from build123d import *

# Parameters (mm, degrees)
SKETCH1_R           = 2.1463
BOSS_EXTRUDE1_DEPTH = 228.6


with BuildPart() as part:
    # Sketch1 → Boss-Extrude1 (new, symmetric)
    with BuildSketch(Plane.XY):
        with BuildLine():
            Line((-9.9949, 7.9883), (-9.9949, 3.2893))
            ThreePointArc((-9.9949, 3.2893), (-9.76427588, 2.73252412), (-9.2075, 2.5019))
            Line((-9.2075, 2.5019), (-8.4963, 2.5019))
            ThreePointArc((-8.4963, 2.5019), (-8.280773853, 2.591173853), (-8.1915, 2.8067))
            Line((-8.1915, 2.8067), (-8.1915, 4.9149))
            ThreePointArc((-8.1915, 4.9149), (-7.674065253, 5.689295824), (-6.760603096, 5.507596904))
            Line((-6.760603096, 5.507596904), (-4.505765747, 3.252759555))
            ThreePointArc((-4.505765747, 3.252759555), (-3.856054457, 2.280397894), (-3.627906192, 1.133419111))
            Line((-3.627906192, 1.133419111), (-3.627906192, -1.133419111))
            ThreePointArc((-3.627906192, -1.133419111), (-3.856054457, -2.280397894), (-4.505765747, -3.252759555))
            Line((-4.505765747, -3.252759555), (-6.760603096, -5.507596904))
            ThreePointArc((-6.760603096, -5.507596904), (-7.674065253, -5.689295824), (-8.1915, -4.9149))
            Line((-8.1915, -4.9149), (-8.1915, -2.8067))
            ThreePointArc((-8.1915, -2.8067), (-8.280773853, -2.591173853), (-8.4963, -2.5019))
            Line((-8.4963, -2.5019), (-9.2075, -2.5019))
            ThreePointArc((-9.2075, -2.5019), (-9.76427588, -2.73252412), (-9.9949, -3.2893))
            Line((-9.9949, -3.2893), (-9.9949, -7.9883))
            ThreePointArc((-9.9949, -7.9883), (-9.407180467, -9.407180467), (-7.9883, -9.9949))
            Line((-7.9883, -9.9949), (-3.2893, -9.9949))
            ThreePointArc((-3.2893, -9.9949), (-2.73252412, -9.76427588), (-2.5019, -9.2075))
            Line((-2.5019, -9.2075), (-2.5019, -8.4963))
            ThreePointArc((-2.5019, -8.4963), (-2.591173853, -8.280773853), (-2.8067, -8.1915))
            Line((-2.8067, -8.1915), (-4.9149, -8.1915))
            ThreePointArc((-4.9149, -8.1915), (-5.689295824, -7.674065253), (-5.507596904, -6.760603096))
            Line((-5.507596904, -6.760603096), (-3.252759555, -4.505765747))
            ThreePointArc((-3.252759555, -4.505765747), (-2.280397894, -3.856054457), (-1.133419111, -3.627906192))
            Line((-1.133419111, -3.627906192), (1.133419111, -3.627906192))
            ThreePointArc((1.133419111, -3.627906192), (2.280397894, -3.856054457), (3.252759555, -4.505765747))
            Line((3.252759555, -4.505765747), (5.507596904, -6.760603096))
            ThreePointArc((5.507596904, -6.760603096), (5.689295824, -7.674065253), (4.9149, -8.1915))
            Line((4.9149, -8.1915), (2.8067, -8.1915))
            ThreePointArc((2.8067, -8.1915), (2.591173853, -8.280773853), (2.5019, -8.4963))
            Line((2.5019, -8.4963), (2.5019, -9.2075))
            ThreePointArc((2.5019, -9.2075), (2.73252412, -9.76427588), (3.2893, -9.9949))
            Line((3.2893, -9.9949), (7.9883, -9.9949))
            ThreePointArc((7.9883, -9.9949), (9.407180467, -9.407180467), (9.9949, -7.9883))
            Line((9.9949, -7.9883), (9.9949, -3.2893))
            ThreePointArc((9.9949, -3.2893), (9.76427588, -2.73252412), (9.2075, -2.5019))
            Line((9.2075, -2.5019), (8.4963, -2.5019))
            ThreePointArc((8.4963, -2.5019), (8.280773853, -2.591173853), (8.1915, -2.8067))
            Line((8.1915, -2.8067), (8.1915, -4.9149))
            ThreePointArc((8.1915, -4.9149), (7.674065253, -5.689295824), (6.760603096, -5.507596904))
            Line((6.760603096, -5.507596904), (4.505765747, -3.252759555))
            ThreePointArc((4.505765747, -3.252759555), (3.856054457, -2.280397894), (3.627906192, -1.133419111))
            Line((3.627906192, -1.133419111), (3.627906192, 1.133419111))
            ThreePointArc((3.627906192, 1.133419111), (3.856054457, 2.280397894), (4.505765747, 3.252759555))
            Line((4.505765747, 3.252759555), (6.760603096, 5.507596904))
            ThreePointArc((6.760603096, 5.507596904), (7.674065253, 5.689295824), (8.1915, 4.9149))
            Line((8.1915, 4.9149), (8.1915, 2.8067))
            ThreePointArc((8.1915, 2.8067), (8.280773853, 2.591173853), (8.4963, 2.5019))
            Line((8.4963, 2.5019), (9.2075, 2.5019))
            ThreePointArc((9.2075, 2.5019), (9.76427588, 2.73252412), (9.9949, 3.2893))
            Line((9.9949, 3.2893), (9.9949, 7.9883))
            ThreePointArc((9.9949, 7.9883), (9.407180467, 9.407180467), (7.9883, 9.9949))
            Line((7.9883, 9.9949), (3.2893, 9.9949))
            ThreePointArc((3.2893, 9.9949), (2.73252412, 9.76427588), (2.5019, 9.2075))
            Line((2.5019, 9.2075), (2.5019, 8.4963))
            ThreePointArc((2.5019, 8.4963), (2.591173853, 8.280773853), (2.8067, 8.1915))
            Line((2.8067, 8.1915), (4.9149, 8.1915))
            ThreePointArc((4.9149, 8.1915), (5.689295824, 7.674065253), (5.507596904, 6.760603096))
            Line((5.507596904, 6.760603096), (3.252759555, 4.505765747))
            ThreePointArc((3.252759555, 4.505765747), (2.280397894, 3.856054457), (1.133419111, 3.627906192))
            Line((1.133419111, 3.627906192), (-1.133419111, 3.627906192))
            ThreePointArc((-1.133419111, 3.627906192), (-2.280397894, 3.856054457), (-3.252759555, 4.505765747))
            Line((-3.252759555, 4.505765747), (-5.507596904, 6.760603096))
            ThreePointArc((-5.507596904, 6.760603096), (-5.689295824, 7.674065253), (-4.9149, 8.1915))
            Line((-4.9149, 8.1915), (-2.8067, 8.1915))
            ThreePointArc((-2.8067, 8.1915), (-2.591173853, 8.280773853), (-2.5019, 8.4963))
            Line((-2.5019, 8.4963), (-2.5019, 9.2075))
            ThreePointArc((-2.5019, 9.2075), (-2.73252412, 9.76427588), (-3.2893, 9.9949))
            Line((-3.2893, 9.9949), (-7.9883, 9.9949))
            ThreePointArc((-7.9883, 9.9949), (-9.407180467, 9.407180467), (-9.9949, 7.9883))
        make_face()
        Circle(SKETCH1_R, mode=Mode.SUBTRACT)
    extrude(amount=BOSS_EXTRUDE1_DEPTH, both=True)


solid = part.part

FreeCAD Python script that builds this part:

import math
import FreeCAD as App
import Part
import Sketcher
from FreeCAD import Vector
Q = App.Units.Quantity

doc = App.newDocument("Part")
body = doc.addObject("PartDesign::Body", "Body")

sketch1 = doc.addObject("Sketcher::SketchObject", "Sketch")
body.addObject(sketch1)
sketch1.AttachmentSupport = (doc.XY_Plane, [""])
sketch1.MapMode = "FlatFace"
sketch1.addGeometry(Part.LineSegment(Vector(-9.99, 7.99, 0), Vector(-9.99, 3.29, 0)), False)
sketch1.addGeometry(Part.ArcOfCircle(Part.Circle(Vector(-9.21, 3.29, 0), Vector(0, 0, 1), 0.79), math.radians(180), math.radians(270)), False)
sketch1.addGeometry(Part.LineSegment(Vector(-9.21, 2.5, 0), Vector(-8.5, 2.5, 0)), False)
sketch1.addGeometry(Part.ArcOfCircle(Part.Circle(Vector(-8.5, 2.81, 0), Vector(0, 0, 1), 0.3), math.radians(-90), math.radians(0)), False)
sketch1.addGeometry(Part.LineSegment(Vector(-8.19, 2.81, 0), Vector(-8.19, 4.91, 0)), False)
sketch1.addGeometry(Part.ArcOfCircle(Part.Circle(Vector(-7.35, 4.91, 0), Vector(0, 0, 1), 0.84), math.radians(45), math.radians(180)), False)
sketch1.addGeometry(Part.LineSegment(Vector(-6.76, 5.51, 0), Vector(-4.51, 3.25, 0)), False)
sketch1.addGeometry(Part.ArcOfCircle(Part.Circle(Vector(-6.63, 1.13, 0), Vector(0, 0, 1), 3), math.radians(0), math.radians(45)), False)
sketch1.addGeometry(Part.LineSegment(Vector(-3.63, 1.13, 0), Vector(-3.63, -1.13, 0)), False)
sketch1.addGeometry(Part.ArcOfCircle(Part.Circle(Vector(-6.63, -1.13, 0), Vector(0, 0, 1), 3), math.radians(-45), math.radians(0)), False)
sketch1.addGeometry(Part.LineSegment(Vector(-4.51, -3.25, 0), Vector(-6.76, -5.51, 0)), False)
sketch1.addGeometry(Part.ArcOfCircle(Part.Circle(Vector(-7.35, -4.91, 0), Vector(0, 0, 1), 0.84), math.radians(180), math.radians(315)), False)
sketch1.addGeometry(Part.LineSegment(Vector(-8.19, -4.91, 0), Vector(-8.19, -2.81, 0)), False)
sketch1.addGeometry(Part.ArcOfCircle(Part.Circle(Vector(-8.5, -2.81, 0), Vector(0, 0, 1), 0.3), math.radians(0), math.radians(90)), False)
sketch1.addGeometry(Part.LineSegment(Vector(-8.5, -2.5, 0), Vector(-9.21, -2.5, 0)), False)
sketch1.addGeometry(Part.ArcOfCircle(Part.Circle(Vector(-9.21, -3.29, 0), Vector(0, 0, 1), 0.79), math.radians(90), math.radians(180)), False)
sketch1.addGeometry(Part.LineSegment(Vector(-9.99, -3.29, 0), Vector(-9.99, -7.99, 0)), False)
sketch1.addGeometry(Part.ArcOfCircle(Part.Circle(Vector(-7.99, -7.99, 0), Vector(0, 0, 1), 2.01), math.radians(180), math.radians(270)), False)
sketch1.addGeometry(Part.LineSegment(Vector(-7.99, -9.99, 0), Vector(-3.29, -9.99, 0)), False)
sketch1.addGeometry(Part.ArcOfCircle(Part.Circle(Vector(-3.29, -9.21, 0), Vector(0, 0, 1), 0.79), math.radians(-90), math.radians(0)), False)
sketch1.addGeometry(Part.LineSegment(Vector(-2.5, -9.21, 0), Vector(-2.5, -8.5, 0)), False)
sketch1.addGeometry(Part.ArcOfCircle(Part.Circle(Vector(-2.81, -8.5, 0), Vector(0, 0, 1), 0.3), math.radians(0), math.radians(90)), False)
sketch1.addGeometry(Part.LineSegment(Vector(-2.81, -8.19, 0), Vector(-4.91, -8.19, 0)), False)
sketch1.addGeometry(Part.ArcOfCircle(Part.Circle(Vector(-4.91, -7.35, 0), Vector(0, 0, 1), 0.84), math.radians(135), math.radians(270)), False)
sketch1.addGeometry(Part.LineSegment(Vector(-5.51, -6.76, 0), Vector(-3.25, -4.51, 0)), False)
sketch1.addGeometry(Part.ArcOfCircle(Part.Circle(Vector(-1.13, -6.63, 0), Vector(0, 0, 1), 3), math.radians(90), math.radians(135)), False)
sketch1.addGeometry(Part.LineSegment(Vector(-1.13, -3.63, 0), Vector(1.13, -3.63, 0)), False)
sketch1.addGeometry(Part.ArcOfCircle(Part.Circle(Vector(1.13, -6.63, 0), Vector(0, 0, 1), 3), math.radians(45), math.radians(90)), False)
sketch1.addGeometry(Part.LineSegment(Vector(3.25, -4.51, 0), Vector(5.51, -6.76, 0)), False)
sketch1.addGeometry(Part.ArcOfCircle(Part.Circle(Vector(4.91, -7.35, 0), Vector(0, 0, 1), 0.84), math.radians(-90), math.radians(45)), False)
sketch1.addGeometry(Part.LineSegment(Vector(4.91, -8.19, 0), Vector(2.81, -8.19, 0)), False)
sketch1.addGeometry(Part.ArcOfCircle(Part.Circle(Vector(2.81, -8.5, 0), Vector(0, 0, 1), 0.3), math.radians(90), math.radians(180)), False)
sketch1.addGeometry(Part.LineSegment(Vector(2.5, -8.5, 0), Vector(2.5, -9.21, 0)), False)
sketch1.addGeometry(Part.ArcOfCircle(Part.Circle(Vector(3.29, -9.21, 0), Vector(0, 0, 1), 0.79), math.radians(180), math.radians(270)), False)
sketch1.addGeometry(Part.LineSegment(Vector(3.29, -9.99, 0), Vector(7.99, -9.99, 0)), False)
sketch1.addGeometry(Part.ArcOfCircle(Part.Circle(Vector(7.99, -7.99, 0), Vector(0, 0, 1), 2.01), math.radians(-90), math.radians(0)), False)
sketch1.addGeometry(Part.LineSegment(Vector(9.99, -7.99, 0), Vector(9.99, -3.29, 0)), False)
sketch1.addGeometry(Part.ArcOfCircle(Part.Circle(Vector(9.21, -3.29, 0), Vector(0, 0, 1), 0.79), math.radians(0), math.radians(90)), False)
sketch1.addGeometry(Part.LineSegment(Vector(9.21, -2.5, 0), Vector(8.5, -2.5, 0)), False)
sketch1.addGeometry(Part.ArcOfCircle(Part.Circle(Vector(8.5, -2.81, 0), Vector(0, 0, 1), 0.3), math.radians(90), math.radians(180)), False)
sketch1.addGeometry(Part.LineSegment(Vector(8.19, -2.81, 0), Vector(8.19, -4.91, 0)), False)
sketch1.addGeometry(Part.ArcOfCircle(Part.Circle(Vector(7.35, -4.91, 0), Vector(0, 0, 1), 0.84), math.radians(-135), math.radians(0)), False)
sketch1.addGeometry(Part.LineSegment(Vector(6.76, -5.51, 0), Vector(4.51, -3.25, 0)), False)
sketch1.addGeometry(Part.ArcOfCircle(Part.Circle(Vector(6.63, -1.13, 0), Vector(0, 0, 1), 3), math.radians(180), math.radians(225)), False)
sketch1.addGeometry(Part.LineSegment(Vector(3.63, -1.13, 0), Vector(3.63, 1.13, 0)), False)
sketch1.addGeometry(Part.ArcOfCircle(Part.Circle(Vector(6.63, 1.13, 0), Vector(0, 0, 1), 3), math.radians(135), math.radians(180)), False)
sketch1.addGeometry(Part.LineSegment(Vector(4.51, 3.25, 0), Vector(6.76, 5.51, 0)), False)
sketch1.addGeometry(Part.ArcOfCircle(Part.Circle(Vector(7.35, 4.91, 0), Vector(0, 0, 1), 0.84), math.radians(0), math.radians(135)), False)
sketch1.addGeometry(Part.LineSegment(Vector(8.19, 4.91, 0), Vector(8.19, 2.81, 0)), False)
sketch1.addGeometry(Part.ArcOfCircle(Part.Circle(Vector(8.5, 2.81, 0), Vector(0, 0, 1), 0.3), math.radians(180), math.radians(270)), False)
sketch1.addGeometry(Part.LineSegment(Vector(8.5, 2.5, 0), Vector(9.21, 2.5, 0)), False)
sketch1.addGeometry(Part.ArcOfCircle(Part.Circle(Vector(9.21, 3.29, 0), Vector(0, 0, 1), 0.79), math.radians(-90), math.radians(0)), False)
sketch1.addGeometry(Part.LineSegment(Vector(9.99, 3.29, 0), Vector(9.99, 7.99, 0)), False)
sketch1.addGeometry(Part.ArcOfCircle(Part.Circle(Vector(7.99, 7.99, 0), Vector(0, 0, 1), 2.01), math.radians(0), math.radians(90)), False)
sketch1.addGeometry(Part.LineSegment(Vector(7.99, 9.99, 0), Vector(3.29, 9.99, 0)), False)
sketch1.addGeometry(Part.ArcOfCircle(Part.Circle(Vector(3.29, 9.21, 0), Vector(0, 0, 1), 0.79), math.radians(90), math.radians(180)), False)
sketch1.addGeometry(Part.LineSegment(Vector(2.5, 9.21, 0), Vector(2.5, 8.5, 0)), False)
sketch1.addGeometry(Part.ArcOfCircle(Part.Circle(Vector(2.81, 8.5, 0), Vector(0, 0, 1), 0.3), math.radians(180), math.radians(270)), False)
sketch1.addGeometry(Part.LineSegment(Vector(2.81, 8.19, 0), Vector(4.91, 8.19, 0)), False)
sketch1.addGeometry(Part.ArcOfCircle(Part.Circle(Vector(4.91, 7.35, 0), Vector(0, 0, 1), 0.84), math.radians(-45), math.radians(90)), False)
sketch1.addGeometry(Part.LineSegment(Vector(5.51, 6.76, 0), Vector(3.25, 4.51, 0)), False)
sketch1.addGeometry(Part.ArcOfCircle(Part.Circle(Vector(1.13, 6.63, 0), Vector(0, 0, 1), 3), math.radians(-90), math.radians(-45)), False)
sketch1.addGeometry(Part.LineSegment(Vector(1.13, 3.63, 0), Vector(-1.13, 3.63, 0)), False)
sketch1.addGeometry(Part.ArcOfCircle(Part.Circle(Vector(-1.13, 6.63, 0), Vector(0, 0, 1), 3), math.radians(-135), math.radians(-90)), False)
sketch1.addGeometry(Part.LineSegment(Vector(-3.25, 4.51, 0), Vector(-5.51, 6.76, 0)), False)
sketch1.addGeometry(Part.ArcOfCircle(Part.Circle(Vector(-4.91, 7.35, 0), Vector(0, 0, 1), 0.84), math.radians(90), math.radians(225)), False)
sketch1.addGeometry(Part.LineSegment(Vector(-4.91, 8.19, 0), Vector(-2.81, 8.19, 0)), False)
sketch1.addGeometry(Part.ArcOfCircle(Part.Circle(Vector(-2.81, 8.5, 0), Vector(0, 0, 1), 0.3), math.radians(-90), math.radians(0)), False)
sketch1.addGeometry(Part.LineSegment(Vector(-2.5, 8.5, 0), Vector(-2.5, 9.21, 0)), False)
sketch1.addGeometry(Part.ArcOfCircle(Part.Circle(Vector(-3.29, 9.21, 0), Vector(0, 0, 1), 0.79), math.radians(0), math.radians(90)), False)
sketch1.addGeometry(Part.LineSegment(Vector(-3.29, 9.99, 0), Vector(-7.99, 9.99, 0)), False)
sketch1.addGeometry(Part.ArcOfCircle(Part.Circle(Vector(-7.99, 7.99, 0), Vector(0, 0, 1), 2.01), math.radians(90), math.radians(180)), False)
sketch1.addGeometry(Part.Circle(Vector(0, 0, 0), Vector(0, 0, 1), 2.15), False)
sketch1.addConstraint(Sketcher.Constraint("Tangent", 0, 2, 1, 1))
sketch1.addConstraint(Sketcher.Constraint("Tangent", 1, 2, 2, 1))
sketch1.addConstraint(Sketcher.Constraint("Tangent", 2, 2, 3, 1))
sketch1.addConstraint(Sketcher.Constraint("Tangent", 3, 2, 4, 1))
sketch1.addConstraint(Sketcher.Constraint("Tangent", 4, 2, 5, 2))
sketch1.addConstraint(Sketcher.Constraint("Tangent", 5, 1, 6, 1))
sketch1.addConstraint(Sketcher.Constraint("Tangent", 6, 2, 7, 2))
sketch1.addConstraint(Sketcher.Constraint("Tangent", 7, 1, 8, 1))
sketch1.addConstraint(Sketcher.Constraint("Tangent", 8, 2, 9, 2))
sketch1.addConstraint(Sketcher.Constraint("Tangent", 9, 1, 10, 1))
sketch1.addConstraint(Sketcher.Constraint("Tangent", 10, 2, 11, 2))
sketch1.addConstraint(Sketcher.Constraint("Tangent", 11, 1, 12, 1))
sketch1.addConstraint(Sketcher.Constraint("Tangent", 12, 2, 13, 1))
sketch1.addConstraint(Sketcher.Constraint("Tangent", 13, 2, 14, 1))
sketch1.addConstraint(Sketcher.Constraint("Tangent", 14, 2, 15, 1))
sketch1.addConstraint(Sketcher.Constraint("Tangent", 15, 2, 16, 1))
sketch1.addConstraint(Sketcher.Constraint("Tangent", 16, 2, 17, 1))
sketch1.addConstraint(Sketcher.Constraint("Tangent", 17, 2, 18, 1))
sketch1.addConstraint(Sketcher.Constraint("Tangent", 18, 2, 19, 1))
sketch1.addConstraint(Sketcher.Constraint("Tangent", 19, 2, 20, 1))
sketch1.addConstraint(Sketcher.Constraint("Tangent", 20, 2, 21, 1))
sketch1.addConstraint(Sketcher.Constraint("Tangent", 21, 2, 22, 1))
sketch1.addConstraint(Sketcher.Constraint("Tangent", 22, 2, 23, 2))
sketch1.addConstraint(Sketcher.Constraint("Tangent", 23, 1, 24, 1))
sketch1.addConstraint(Sketcher.Constraint("Tangent", 24, 2, 25, 2))
sketch1.addConstraint(Sketcher.Constraint("Tangent", 25, 1, 26, 1))
sketch1.addConstraint(Sketcher.Constraint("Tangent", 26, 2, 27, 2))
sketch1.addConstraint(Sketcher.Constraint("Tangent", 27, 1, 28, 1))
sketch1.addConstraint(Sketcher.Constraint("Tangent", 28, 2, 29, 2))
sketch1.addConstraint(Sketcher.Constraint("Tangent", 29, 1, 30, 1))
sketch1.addConstraint(Sketcher.Constraint("Tangent", 30, 2, 31, 1))
sketch1.addConstraint(Sketcher.Constraint("Tangent", 31, 2, 32, 1))
sketch1.addConstraint(Sketcher.Constraint("Tangent", 32, 2, 33, 1))
sketch1.addConstraint(Sketcher.Constraint("Tangent", 33, 2, 34, 1))
sketch1.addConstraint(Sketcher.Constraint("Tangent", 34, 2, 35, 1))
sketch1.addConstraint(Sketcher.Constraint("Tangent", 35, 2, 36, 1))
sketch1.addConstraint(Sketcher.Constraint("Tangent", 36, 2, 37, 1))
sketch1.addConstraint(Sketcher.Constraint("Tangent", 37, 2, 38, 1))
sketch1.addConstraint(Sketcher.Constraint("Tangent", 38, 2, 39, 1))
sketch1.addConstraint(Sketcher.Constraint("Tangent", 39, 2, 40, 1))
sketch1.addConstraint(Sketcher.Constraint("Tangent", 40, 2, 41, 2))
sketch1.addConstraint(Sketcher.Constraint("Tangent", 41, 1, 42, 1))
sketch1.addConstraint(Sketcher.Constraint("Tangent", 42, 2, 43, 2))
sketch1.addConstraint(Sketcher.Constraint("Tangent", 43, 1, 44, 1))
sketch1.addConstraint(Sketcher.Constraint("Tangent", 44, 2, 45, 2))
sketch1.addConstraint(Sketcher.Constraint("Tangent", 45, 1, 46, 1))
sketch1.addConstraint(Sketcher.Constraint("Tangent", 46, 2, 47, 2))
sketch1.addConstraint(Sketcher.Constraint("Tangent", 47, 1, 48, 1))
sketch1.addConstraint(Sketcher.Constraint("Tangent", 48, 2, 49, 1))
sketch1.addConstraint(Sketcher.Constraint("Tangent", 49, 2, 50, 1))
sketch1.addConstraint(Sketcher.Constraint("Tangent", 50, 2, 51, 1))
sketch1.addConstraint(Sketcher.Constraint("Tangent", 51, 2, 52, 1))
sketch1.addConstraint(Sketcher.Constraint("Tangent", 52, 2, 53, 1))
sketch1.addConstraint(Sketcher.Constraint("Tangent", 53, 2, 54, 1))
sketch1.addConstraint(Sketcher.Constraint("Tangent", 54, 2, 55, 1))
sketch1.addConstraint(Sketcher.Constraint("Tangent", 55, 2, 56, 1))
sketch1.addConstraint(Sketcher.Constraint("Tangent", 56, 2, 57, 1))
sketch1.addConstraint(Sketcher.Constraint("Tangent", 57, 2, 58, 1))
sketch1.addConstraint(Sketcher.Constraint("Tangent", 58, 2, 59, 2))
sketch1.addConstraint(Sketcher.Constraint("Tangent", 59, 1, 60, 1))
sketch1.addConstraint(Sketcher.Constraint("Tangent", 60, 2, 61, 2))
sketch1.addConstraint(Sketcher.Constraint("Tangent", 61, 1, 62, 1))
sketch1.addConstraint(Sketcher.Constraint("Tangent", 62, 2, 63, 2))
sketch1.addConstraint(Sketcher.Constraint("Tangent", 63, 1, 64, 1))
sketch1.addConstraint(Sketcher.Constraint("Tangent", 64, 2, 65, 2))
sketch1.addConstraint(Sketcher.Constraint("Tangent", 65, 1, 66, 1))
sketch1.addConstraint(Sketcher.Constraint("Tangent", 66, 2, 67, 1))
sketch1.addConstraint(Sketcher.Constraint("Tangent", 67, 2, 68, 1))
sketch1.addConstraint(Sketcher.Constraint("Tangent", 68, 2, 69, 1))
sketch1.addConstraint(Sketcher.Constraint("Tangent", 69, 2, 70, 1))
sketch1.addConstraint(Sketcher.Constraint("Tangent", 70, 2, 71, 1))
sketch1.addConstraint(Sketcher.Constraint("Tangent", 71, 2, 0, 1))
sketch1.addConstraint(Sketcher.Constraint("Vertical", 0))
sketch1.addConstraint(Sketcher.Constraint("Horizontal", 2))
sketch1.addConstraint(Sketcher.Constraint("Vertical", 4))
sketch1.addConstraint(Sketcher.Constraint("Vertical", 8))
sketch1.addConstraint(Sketcher.Constraint("Vertical", 12))
sketch1.addConstraint(Sketcher.Constraint("Horizontal", 14))
sketch1.addConstraint(Sketcher.Constraint("Vertical", 16))
sketch1.addConstraint(Sketcher.Constraint("Horizontal", 18))
sketch1.addConstraint(Sketcher.Constraint("Vertical", 20))
sketch1.addConstraint(Sketcher.Constraint("Horizontal", 22))
sketch1.addConstraint(Sketcher.Constraint("Horizontal", 26))
sketch1.addConstraint(Sketcher.Constraint("Horizontal", 30))
sketch1.addConstraint(Sketcher.Constraint("Vertical", 32))
sketch1.addConstraint(Sketcher.Constraint("Horizontal", 34))
sketch1.addConstraint(Sketcher.Constraint("Vertical", 36))
sketch1.addConstraint(Sketcher.Constraint("Horizontal", 38))
sketch1.addConstraint(Sketcher.Constraint("Vertical", 40))
sketch1.addConstraint(Sketcher.Constraint("Vertical", 44))
sketch1.addConstraint(Sketcher.Constraint("Vertical", 48))
sketch1.addConstraint(Sketcher.Constraint("Horizontal", 50))
sketch1.addConstraint(Sketcher.Constraint("Vertical", 52))
sketch1.addConstraint(Sketcher.Constraint("Horizontal", 54))
sketch1.addConstraint(Sketcher.Constraint("Vertical", 56))
sketch1.addConstraint(Sketcher.Constraint("Horizontal", 58))
sketch1.addConstraint(Sketcher.Constraint("Horizontal", 62))
sketch1.addConstraint(Sketcher.Constraint("Horizontal", 66))
sketch1.addConstraint(Sketcher.Constraint("Vertical", 68))
sketch1.addConstraint(Sketcher.Constraint("Horizontal", 70))
sketch1.addConstraint(Sketcher.Constraint("Coincident", 72, 3, -1, 1))
sketch1.addConstraint(Sketcher.Constraint("Equal", 7, 9))
sketch1.addConstraint(Sketcher.Constraint("Equal", 5, 11))
sketch1.addConstraint(Sketcher.Constraint("Equal", 3, 13))
sketch1.addConstraint(Sketcher.Constraint("Equal", 1, 15))
sketch1.addConstraint(Sketcher.Constraint("Equal", 15, 19))
sketch1.addConstraint(Sketcher.Constraint("Equal", 13, 21))
sketch1.addConstraint(Sketcher.Constraint("Equal", 11, 23))
sketch1.addConstraint(Sketcher.Constraint("Equal", 9, 25))
sketch1.addConstraint(Sketcher.Constraint("Equal", 25, 27))
sketch1.addConstraint(Sketcher.Constraint("Equal", 23, 29))
sketch1.addConstraint(Sketcher.Constraint("Equal", 21, 31))
sketch1.addConstraint(Sketcher.Constraint("Equal", 19, 33))
sketch1.addConstraint(Sketcher.Constraint("Equal", 17, 35))
sketch1.addConstraint(Sketcher.Constraint("Equal", 33, 37))
sketch1.addConstraint(Sketcher.Constraint("Equal", 31, 39))
sketch1.addConstraint(Sketcher.Constraint("Equal", 29, 41))
sketch1.addConstraint(Sketcher.Constraint("Equal", 27, 43))
sketch1.addConstraint(Sketcher.Constraint("Equal", 43, 45))
sketch1.addConstraint(Sketcher.Constraint("Equal", 41, 47))
sketch1.addConstraint(Sketcher.Constraint("Equal", 39, 49))
sketch1.addConstraint(Sketcher.Constraint("Equal", 37, 51))
sketch1.addConstraint(Sketcher.Constraint("Equal", 35, 53))
sketch1.addConstraint(Sketcher.Constraint("Equal", 51, 55))
sketch1.addConstraint(Sketcher.Constraint("Equal", 49, 57))
sketch1.addConstraint(Sketcher.Constraint("Equal", 47, 59))
sketch1.addConstraint(Sketcher.Constraint("Equal", 45, 61))
sketch1.addConstraint(Sketcher.Constraint("Equal", 61, 63))
sketch1.addConstraint(Sketcher.Constraint("Equal", 59, 65))
sketch1.addConstraint(Sketcher.Constraint("Equal", 57, 67))
sketch1.addConstraint(Sketcher.Constraint("Equal", 55, 69))
sketch1.addConstraint(Sketcher.Constraint("Equal", 53, 71))
sketch1.addConstraint(Sketcher.Constraint("Symmetric", 1, 3, 37, 3, -1, 1))
sketch1.addConstraint(Sketcher.Constraint("Symmetric", 5, 3, 41, 3, -1, 1))
sketch1.addConstraint(Sketcher.Constraint("Symmetric", 7, 3, 43, 3, -1, 1))
sketch1.addConstraint(Sketcher.Constraint("Symmetric", 11, 3, 47, 3, -1, 1))
sketch1.addConstraint(Sketcher.Constraint("Symmetric", 15, 3, 51, 3, -1, 1))
sketch1.addConstraint(Sketcher.Constraint("Symmetric", 19, 3, 55, 3, -1, 1))
sketch1.addConstraint(Sketcher.Constraint("Symmetric", 23, 3, 59, 3, -1, 1))
sketch1.addConstraint(Sketcher.Constraint("Symmetric", 25, 3, 61, 3, -1, 1))
sketch1.addConstraint(Sketcher.Constraint("Symmetric", 29, 3, 65, 3, -1, 1))
sketch1.addConstraint(Sketcher.Constraint("Symmetric", 33, 3, 69, 3, -1, 1))
sketch1.addConstraint(Sketcher.Constraint("Symmetric", 23, 3, 29, 3, -2))
sketch1.addConstraint(Sketcher.Constraint("Symmetric", 19, 3, 33, 3, -2))
sketch1.addConstraint(Sketcher.Constraint("Symmetric", 15, 3, 37, 3, -2))
sketch1.addConstraint(Sketcher.Constraint("Symmetric", 11, 3, 41, 3, -2))
sketch1.addConstraint(Sketcher.Constraint("Perpendicular", 6, 10))
sketch1.addConstraint(Sketcher.Constraint("Parallel", 10, 24))
sketch1.addConstraint(Sketcher.Constraint("Perpendicular", 24, 28))
sketch1.addConstraint(Sketcher.Constraint("Perpendicular", 42, 46))
sketch1.addConstraint(Sketcher.Constraint("Perpendicular", 60, 64))
sketch1.addConstraint(Sketcher.Constraint("Horizontal", 9, 3, 43, 3))
sketch1.addConstraint(Sketcher.Constraint("Equal", 70, 0))
sketch1.addConstraint(Sketcher.Constraint("Equal", 66, 4))
sketch1.addConstraint(Sketcher.Constraint("Equal", 62, 8))
sketch1.addConstraint(Sketcher.Constraint("Equal", 50, 20))
sketch1.addConstraint(Sketcher.Constraint("Equal", 10, 24))
sketch1.addConstraint(Sketcher.Constraint("Diameter", 72, Q("0.169 in")))
sketch1.addConstraint(Sketcher.Constraint("Radius", 1, Q("0.031 in")))
sketch1.addConstraint(Sketcher.Constraint("Radius", 3, Q("0.012 in")))
sketch1.addConstraint(Sketcher.Constraint("Radius", 5, Q("0.033 in")))
sketch1.addConstraint(Sketcher.Constraint("Radius", 7, Q("0.118 in")))
sketch1.addConstraint(Sketcher.Constraint("Radius", 17, Q("0.079 in")))
sketch1.addConstraint(Sketcher.Constraint("DistanceX", 2, 1, 2, 2, Q("0.028 in")))
sketch1.addConstraint(Sketcher.Constraint("DistanceX", 18, 1, 18, 2, Q("0.185 in")))
sketch1.addConstraint(Sketcher.Constraint("DistanceX", 22, 2, 22, 1, Q("0.083 in")))
sketch1.addConstraint(Sketcher.Constraint("DistanceX", 1, 3, -1, 1, Q("0.3625 in")))
sketch1.addConstraint(Sketcher.Constraint("DistanceX", 26, 1, 26, 2, 2.266838))
pad1 = doc.addObject("PartDesign::Pad", "Pad")
body.addObject(pad1)
pad1.Profile = sketch1
pad1.Length = Q("18 in")
pad1.Midplane = True

doc.recompute()
